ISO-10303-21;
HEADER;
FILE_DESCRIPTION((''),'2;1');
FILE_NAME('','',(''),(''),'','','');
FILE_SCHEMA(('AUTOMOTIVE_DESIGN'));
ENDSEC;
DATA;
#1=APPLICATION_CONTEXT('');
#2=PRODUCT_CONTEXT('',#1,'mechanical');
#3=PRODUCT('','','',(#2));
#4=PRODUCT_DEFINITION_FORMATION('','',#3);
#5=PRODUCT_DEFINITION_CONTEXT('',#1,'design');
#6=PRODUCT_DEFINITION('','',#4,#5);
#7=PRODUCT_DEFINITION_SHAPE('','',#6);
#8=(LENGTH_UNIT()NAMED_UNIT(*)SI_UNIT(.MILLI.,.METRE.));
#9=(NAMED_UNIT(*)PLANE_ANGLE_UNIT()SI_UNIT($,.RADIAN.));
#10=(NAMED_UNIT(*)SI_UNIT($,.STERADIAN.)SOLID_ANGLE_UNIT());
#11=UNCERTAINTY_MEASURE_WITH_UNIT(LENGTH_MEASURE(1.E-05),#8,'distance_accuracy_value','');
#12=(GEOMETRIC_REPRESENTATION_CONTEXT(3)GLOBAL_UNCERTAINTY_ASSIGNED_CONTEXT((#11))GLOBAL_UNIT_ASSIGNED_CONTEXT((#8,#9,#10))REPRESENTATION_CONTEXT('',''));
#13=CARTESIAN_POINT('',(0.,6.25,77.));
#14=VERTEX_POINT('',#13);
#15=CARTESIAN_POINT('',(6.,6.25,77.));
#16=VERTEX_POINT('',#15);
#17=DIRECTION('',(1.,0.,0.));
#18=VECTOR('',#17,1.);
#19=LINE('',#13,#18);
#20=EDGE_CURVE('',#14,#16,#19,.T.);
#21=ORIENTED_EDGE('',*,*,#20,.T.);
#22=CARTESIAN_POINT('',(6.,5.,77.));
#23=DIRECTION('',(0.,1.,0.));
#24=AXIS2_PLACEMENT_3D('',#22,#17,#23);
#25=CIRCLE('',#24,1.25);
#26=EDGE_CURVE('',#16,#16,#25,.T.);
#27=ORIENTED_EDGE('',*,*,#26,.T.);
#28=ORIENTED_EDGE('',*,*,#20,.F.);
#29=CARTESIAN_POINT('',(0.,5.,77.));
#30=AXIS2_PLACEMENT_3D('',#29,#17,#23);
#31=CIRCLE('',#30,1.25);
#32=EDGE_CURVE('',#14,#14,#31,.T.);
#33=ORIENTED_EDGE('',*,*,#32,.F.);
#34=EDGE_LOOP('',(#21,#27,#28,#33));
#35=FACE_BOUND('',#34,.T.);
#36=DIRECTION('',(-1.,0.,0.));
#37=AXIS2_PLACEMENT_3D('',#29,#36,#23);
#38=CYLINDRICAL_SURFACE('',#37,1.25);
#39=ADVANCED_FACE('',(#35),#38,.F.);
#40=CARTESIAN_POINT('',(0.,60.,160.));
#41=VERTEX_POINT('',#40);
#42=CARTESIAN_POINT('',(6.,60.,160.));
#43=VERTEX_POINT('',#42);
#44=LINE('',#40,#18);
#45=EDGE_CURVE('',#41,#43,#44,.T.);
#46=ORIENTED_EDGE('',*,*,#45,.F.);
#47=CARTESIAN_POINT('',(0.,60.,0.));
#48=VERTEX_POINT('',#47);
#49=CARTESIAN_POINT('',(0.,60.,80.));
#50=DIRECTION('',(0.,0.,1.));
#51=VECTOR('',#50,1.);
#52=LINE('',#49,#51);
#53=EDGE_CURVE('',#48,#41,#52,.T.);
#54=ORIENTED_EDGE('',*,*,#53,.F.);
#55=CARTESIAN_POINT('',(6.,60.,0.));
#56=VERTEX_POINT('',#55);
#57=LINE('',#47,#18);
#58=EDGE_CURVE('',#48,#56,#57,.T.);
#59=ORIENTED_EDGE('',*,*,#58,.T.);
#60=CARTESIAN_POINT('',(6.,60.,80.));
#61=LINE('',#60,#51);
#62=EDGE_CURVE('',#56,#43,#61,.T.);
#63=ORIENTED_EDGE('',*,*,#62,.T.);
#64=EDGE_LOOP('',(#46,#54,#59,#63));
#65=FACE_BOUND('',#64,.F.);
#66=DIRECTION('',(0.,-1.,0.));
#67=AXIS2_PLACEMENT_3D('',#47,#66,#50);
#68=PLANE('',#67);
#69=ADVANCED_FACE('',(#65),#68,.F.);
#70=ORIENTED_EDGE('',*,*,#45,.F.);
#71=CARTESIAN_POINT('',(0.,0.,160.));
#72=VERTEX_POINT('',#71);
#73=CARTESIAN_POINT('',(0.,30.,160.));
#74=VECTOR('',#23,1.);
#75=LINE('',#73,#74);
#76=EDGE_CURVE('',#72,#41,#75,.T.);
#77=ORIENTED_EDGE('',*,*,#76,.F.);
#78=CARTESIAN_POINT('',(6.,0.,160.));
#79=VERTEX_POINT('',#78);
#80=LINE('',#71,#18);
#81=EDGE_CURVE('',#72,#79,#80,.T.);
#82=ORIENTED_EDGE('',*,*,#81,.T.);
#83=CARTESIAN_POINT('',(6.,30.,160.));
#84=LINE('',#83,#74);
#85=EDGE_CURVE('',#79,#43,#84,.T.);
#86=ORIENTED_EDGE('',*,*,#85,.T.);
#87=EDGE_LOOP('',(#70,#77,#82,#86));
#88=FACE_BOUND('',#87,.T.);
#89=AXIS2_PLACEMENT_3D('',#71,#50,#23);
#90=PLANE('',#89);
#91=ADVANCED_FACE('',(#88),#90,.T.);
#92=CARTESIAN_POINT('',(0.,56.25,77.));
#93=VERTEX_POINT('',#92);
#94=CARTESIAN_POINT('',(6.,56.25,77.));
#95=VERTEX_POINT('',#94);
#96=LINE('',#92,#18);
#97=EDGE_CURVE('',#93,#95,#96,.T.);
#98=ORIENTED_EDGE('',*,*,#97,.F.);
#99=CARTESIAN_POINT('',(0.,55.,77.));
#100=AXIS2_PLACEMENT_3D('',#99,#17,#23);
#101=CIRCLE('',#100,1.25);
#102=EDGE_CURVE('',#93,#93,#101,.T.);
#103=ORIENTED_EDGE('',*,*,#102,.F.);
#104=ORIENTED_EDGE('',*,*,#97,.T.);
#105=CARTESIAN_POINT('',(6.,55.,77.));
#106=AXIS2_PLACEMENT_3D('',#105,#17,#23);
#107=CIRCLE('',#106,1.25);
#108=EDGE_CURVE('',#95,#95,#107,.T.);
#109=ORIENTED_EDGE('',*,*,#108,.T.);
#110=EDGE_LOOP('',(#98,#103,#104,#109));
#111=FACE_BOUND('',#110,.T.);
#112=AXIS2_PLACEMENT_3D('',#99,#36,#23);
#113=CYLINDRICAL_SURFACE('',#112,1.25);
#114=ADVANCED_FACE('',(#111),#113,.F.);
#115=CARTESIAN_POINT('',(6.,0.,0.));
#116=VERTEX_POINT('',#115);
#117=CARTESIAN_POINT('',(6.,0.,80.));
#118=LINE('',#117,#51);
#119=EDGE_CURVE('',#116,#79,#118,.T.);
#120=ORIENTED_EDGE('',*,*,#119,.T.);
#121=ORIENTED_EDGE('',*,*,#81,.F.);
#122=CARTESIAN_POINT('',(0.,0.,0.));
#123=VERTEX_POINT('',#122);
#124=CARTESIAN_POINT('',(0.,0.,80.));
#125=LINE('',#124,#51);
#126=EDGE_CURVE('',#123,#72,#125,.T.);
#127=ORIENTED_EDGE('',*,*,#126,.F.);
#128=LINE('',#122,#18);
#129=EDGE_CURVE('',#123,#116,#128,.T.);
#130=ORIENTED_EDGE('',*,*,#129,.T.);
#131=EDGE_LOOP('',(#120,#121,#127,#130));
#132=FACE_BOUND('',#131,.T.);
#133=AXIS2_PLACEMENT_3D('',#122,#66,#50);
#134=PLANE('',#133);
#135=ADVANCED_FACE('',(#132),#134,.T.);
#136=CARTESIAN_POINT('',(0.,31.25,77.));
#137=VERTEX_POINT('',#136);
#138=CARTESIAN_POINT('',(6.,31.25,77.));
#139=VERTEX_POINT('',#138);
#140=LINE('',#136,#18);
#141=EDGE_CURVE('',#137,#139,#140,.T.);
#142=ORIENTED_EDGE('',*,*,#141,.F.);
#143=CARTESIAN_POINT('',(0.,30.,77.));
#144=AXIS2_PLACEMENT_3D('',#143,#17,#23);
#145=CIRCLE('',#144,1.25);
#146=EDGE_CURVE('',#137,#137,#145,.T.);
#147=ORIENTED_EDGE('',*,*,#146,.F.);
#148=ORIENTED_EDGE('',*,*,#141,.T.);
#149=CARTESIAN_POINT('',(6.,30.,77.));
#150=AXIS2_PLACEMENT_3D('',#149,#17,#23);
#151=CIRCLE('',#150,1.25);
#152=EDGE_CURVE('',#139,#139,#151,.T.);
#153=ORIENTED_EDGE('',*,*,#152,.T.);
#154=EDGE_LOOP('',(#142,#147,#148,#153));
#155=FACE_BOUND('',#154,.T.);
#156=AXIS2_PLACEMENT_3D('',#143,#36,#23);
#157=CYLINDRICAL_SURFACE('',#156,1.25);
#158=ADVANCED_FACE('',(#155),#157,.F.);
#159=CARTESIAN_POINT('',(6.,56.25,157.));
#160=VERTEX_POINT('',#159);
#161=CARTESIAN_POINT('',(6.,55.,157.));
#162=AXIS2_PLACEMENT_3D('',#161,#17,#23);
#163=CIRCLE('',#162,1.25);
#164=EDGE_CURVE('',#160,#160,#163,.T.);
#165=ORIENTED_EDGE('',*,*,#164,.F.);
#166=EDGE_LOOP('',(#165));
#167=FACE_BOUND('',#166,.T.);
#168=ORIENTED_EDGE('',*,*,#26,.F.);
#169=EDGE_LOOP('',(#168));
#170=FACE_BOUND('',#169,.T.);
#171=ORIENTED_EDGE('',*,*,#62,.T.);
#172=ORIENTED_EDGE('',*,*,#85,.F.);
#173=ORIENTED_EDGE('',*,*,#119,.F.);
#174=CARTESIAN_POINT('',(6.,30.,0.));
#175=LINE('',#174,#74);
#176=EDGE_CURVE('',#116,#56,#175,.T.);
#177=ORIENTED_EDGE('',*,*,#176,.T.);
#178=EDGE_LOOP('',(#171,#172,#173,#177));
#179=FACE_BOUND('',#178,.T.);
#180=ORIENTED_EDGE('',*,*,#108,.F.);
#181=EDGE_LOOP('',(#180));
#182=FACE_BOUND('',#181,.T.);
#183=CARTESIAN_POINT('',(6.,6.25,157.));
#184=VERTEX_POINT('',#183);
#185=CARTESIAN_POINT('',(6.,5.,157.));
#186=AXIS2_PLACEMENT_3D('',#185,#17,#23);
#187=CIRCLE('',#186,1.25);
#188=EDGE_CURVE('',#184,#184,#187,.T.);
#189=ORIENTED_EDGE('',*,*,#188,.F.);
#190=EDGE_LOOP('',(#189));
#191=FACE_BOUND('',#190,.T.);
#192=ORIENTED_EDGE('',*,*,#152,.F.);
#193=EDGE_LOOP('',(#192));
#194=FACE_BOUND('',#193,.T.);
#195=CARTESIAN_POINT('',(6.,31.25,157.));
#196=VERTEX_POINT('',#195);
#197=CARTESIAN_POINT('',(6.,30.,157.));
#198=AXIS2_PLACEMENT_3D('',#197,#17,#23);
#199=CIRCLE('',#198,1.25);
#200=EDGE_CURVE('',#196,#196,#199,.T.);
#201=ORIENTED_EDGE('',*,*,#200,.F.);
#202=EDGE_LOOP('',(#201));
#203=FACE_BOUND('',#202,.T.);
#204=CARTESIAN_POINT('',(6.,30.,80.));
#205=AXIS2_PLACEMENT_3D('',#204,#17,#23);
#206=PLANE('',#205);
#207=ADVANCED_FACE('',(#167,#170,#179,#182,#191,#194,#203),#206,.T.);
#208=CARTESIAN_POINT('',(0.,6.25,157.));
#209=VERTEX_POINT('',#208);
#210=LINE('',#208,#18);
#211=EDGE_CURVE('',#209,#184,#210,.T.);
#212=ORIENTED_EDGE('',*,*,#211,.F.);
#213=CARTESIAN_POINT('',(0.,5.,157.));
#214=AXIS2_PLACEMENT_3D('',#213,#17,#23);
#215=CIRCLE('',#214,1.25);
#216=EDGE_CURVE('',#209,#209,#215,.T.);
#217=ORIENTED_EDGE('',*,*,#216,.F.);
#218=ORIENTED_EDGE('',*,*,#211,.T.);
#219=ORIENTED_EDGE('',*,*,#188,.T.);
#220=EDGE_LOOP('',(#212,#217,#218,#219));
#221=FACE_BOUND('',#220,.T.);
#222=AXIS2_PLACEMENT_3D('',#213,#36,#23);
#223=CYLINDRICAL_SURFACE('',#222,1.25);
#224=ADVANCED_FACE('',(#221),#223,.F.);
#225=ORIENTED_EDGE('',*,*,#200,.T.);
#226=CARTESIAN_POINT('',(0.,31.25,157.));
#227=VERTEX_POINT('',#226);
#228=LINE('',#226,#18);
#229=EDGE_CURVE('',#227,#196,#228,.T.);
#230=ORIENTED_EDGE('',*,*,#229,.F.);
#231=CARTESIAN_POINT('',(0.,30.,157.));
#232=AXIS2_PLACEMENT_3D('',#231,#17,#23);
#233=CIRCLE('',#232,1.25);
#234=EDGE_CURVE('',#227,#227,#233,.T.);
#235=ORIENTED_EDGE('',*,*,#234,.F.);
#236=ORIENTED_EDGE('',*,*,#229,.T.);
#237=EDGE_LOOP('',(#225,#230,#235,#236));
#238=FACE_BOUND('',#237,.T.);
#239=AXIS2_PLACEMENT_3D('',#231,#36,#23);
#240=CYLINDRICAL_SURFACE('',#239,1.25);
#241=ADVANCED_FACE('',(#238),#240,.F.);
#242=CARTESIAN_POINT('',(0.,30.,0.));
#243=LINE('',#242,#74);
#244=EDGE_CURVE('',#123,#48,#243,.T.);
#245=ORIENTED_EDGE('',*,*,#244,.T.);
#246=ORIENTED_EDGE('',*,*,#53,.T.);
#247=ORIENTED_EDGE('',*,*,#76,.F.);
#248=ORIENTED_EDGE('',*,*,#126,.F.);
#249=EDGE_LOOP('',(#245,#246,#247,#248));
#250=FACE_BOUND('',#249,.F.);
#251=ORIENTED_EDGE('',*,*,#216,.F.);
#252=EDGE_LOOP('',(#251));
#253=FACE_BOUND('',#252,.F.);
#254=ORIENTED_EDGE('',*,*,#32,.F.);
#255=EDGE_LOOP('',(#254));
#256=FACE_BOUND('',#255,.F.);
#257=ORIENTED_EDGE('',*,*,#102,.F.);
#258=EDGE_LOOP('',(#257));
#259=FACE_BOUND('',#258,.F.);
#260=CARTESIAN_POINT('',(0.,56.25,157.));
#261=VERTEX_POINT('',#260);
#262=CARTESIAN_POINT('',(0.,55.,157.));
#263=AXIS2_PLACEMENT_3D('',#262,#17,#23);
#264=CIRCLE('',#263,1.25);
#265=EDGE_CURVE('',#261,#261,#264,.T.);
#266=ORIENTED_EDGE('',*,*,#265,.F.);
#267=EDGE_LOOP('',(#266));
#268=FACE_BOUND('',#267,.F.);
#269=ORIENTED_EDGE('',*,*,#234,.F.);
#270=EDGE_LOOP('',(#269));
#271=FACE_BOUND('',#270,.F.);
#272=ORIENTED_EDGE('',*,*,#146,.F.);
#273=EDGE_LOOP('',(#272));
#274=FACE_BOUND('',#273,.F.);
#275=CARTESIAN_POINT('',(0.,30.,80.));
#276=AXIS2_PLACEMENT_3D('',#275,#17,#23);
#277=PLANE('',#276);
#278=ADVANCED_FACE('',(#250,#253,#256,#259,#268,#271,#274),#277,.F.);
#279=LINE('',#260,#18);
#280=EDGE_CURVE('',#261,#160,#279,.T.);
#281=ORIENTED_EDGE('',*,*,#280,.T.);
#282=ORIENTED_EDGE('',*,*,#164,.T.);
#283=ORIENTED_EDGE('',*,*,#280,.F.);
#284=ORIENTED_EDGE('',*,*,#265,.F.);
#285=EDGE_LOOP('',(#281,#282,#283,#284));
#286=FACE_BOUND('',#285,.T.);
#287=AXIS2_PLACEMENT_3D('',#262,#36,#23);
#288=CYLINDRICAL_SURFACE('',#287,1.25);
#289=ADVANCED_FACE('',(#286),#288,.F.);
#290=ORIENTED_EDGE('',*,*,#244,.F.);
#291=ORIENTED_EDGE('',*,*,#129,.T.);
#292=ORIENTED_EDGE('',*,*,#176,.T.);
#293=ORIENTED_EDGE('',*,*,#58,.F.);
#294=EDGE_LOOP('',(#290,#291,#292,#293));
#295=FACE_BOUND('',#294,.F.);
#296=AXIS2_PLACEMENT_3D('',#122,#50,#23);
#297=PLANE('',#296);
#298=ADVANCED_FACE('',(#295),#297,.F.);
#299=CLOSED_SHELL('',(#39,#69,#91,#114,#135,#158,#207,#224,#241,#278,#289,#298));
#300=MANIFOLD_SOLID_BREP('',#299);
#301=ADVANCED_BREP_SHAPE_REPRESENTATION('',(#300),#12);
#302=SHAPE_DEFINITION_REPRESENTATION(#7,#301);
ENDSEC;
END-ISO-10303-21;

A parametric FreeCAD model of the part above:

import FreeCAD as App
import Part
import Sketcher
Q = App.Units.Quantity

doc = App.newDocument("Part")
body = doc.addObject("PartDesign::Body", "Body")

sketch1 = doc.addObject("Sketcher::SketchObject", "Sketch")
body.addObject(sketch1)
sketch1.AttachmentSupport = (doc.YZ_Plane, [""])
sketch1.MapMode = "FlatFace"
sketch1.addGeometry([
    Part.LineSegment(App.Vector(0, 160, 0), App.Vector(0, 0, 0)),
    Part.LineSegment(App.Vector(0, 0, 0), App.Vector(60, 0, 0)),
    Part.LineSegment(App.Vector(60, 0, 0), App.Vector(60, 160, 0)),
    Part.LineSegment(App.Vector(60, 160, 0), App.Vector(0, 160, 0)),
    Part.Circle(App.Vector(5, 77, 0), App.Vector(0, 0, 1), 1.2),
    Part.Circle(App.Vector(30, 77, 0), App.Vector(0, 0, 1), 1.2),
    Part.Circle(App.Vector(55, 77, 0), App.Vector(0, 0, 1), 1.2),
    Part.Circle(App.Vector(5, 157, 0), App.Vector(0, 0, 1), 1.2),
    Part.Circle(App.Vector(30, 157, 0), App.Vector(0, 0, 1), 1.2),
    Part.Circle(App.Vector(55, 157, 0), App.Vector(0, 0, 1), 1.2),
], False)
sketch1.addConstraint([
    Sketcher.Constraint("Coincident", 0, 2, 1, 1),
    Sketcher.Constraint("Coincident", 1, 2, 2, 1),
    Sketcher.Constraint("Coincident", 2, 2, 3, 1),
    Sketcher.Constraint("Coincident", 3, 2, 0, 1),
    Sketcher.Constraint("Vertical", 0),
    Sketcher.Constraint("Horizontal", 1),
    Sketcher.Constraint("Vertical", 2),
    Sketcher.Constraint("Horizontal", 3),
    Sketcher.Constraint("Coincident", 0, 2, -1, 1),
    Sketcher.Constraint("Equal", 4, 5),
    Sketcher.Constraint("Equal", 5, 6),
    Sketcher.Constraint("Equal", 6, 7),
    Sketcher.Constraint("Equal", 7, 8),
    Sketcher.Constraint("Equal", 8, 9),
    Sketcher.Constraint("Horizontal", 4, 3, 5, 3),
    Sketcher.Constraint("Horizontal", 5, 3, 6, 3),
    Sketcher.Constraint("Horizontal", 7, 3, 8, 3),
    Sketcher.Constraint("Horizontal", 8, 3, 9, 3),
    Sketcher.Constraint("Vertical", 4, 3, 7, 3),
    Sketcher.Constraint("Vertical", 5, 3, 8, 3),
    Sketcher.Constraint("Vertical", 6, 3, 9, 3),
    Sketcher.Constraint("Diameter", 4, Q("2.5 mm")),
    Sketcher.Constraint("DistanceX", 1, 1, 1, 2, Q("60 mm")),
    Sketcher.Constraint("DistanceY", 0, 2, 0, 1, Q("160 mm")),
    Sketcher.Constraint("DistanceX", -1, 1, 4, 3, Q("5 mm")),
    Sketcher.Constraint("DistanceY", -1, 1, 4, 3, Q("77 mm")),
    Sketcher.Constraint("DistanceX", -1, 1, 5, 3, Q("30 mm")),
    Sketcher.Constraint("DistanceX", -1, 1, 6, 3, Q("55 mm")),
    Sketcher.Constraint("DistanceY", -1, 1, 7, 3, Q("157 mm")),
])
pad1 = doc.addObject("PartDesign::Pad", "Pad")
body.addObject(pad1)
pad1.Profile = sketch1
pad1.Length = 6

doc.recompute()
